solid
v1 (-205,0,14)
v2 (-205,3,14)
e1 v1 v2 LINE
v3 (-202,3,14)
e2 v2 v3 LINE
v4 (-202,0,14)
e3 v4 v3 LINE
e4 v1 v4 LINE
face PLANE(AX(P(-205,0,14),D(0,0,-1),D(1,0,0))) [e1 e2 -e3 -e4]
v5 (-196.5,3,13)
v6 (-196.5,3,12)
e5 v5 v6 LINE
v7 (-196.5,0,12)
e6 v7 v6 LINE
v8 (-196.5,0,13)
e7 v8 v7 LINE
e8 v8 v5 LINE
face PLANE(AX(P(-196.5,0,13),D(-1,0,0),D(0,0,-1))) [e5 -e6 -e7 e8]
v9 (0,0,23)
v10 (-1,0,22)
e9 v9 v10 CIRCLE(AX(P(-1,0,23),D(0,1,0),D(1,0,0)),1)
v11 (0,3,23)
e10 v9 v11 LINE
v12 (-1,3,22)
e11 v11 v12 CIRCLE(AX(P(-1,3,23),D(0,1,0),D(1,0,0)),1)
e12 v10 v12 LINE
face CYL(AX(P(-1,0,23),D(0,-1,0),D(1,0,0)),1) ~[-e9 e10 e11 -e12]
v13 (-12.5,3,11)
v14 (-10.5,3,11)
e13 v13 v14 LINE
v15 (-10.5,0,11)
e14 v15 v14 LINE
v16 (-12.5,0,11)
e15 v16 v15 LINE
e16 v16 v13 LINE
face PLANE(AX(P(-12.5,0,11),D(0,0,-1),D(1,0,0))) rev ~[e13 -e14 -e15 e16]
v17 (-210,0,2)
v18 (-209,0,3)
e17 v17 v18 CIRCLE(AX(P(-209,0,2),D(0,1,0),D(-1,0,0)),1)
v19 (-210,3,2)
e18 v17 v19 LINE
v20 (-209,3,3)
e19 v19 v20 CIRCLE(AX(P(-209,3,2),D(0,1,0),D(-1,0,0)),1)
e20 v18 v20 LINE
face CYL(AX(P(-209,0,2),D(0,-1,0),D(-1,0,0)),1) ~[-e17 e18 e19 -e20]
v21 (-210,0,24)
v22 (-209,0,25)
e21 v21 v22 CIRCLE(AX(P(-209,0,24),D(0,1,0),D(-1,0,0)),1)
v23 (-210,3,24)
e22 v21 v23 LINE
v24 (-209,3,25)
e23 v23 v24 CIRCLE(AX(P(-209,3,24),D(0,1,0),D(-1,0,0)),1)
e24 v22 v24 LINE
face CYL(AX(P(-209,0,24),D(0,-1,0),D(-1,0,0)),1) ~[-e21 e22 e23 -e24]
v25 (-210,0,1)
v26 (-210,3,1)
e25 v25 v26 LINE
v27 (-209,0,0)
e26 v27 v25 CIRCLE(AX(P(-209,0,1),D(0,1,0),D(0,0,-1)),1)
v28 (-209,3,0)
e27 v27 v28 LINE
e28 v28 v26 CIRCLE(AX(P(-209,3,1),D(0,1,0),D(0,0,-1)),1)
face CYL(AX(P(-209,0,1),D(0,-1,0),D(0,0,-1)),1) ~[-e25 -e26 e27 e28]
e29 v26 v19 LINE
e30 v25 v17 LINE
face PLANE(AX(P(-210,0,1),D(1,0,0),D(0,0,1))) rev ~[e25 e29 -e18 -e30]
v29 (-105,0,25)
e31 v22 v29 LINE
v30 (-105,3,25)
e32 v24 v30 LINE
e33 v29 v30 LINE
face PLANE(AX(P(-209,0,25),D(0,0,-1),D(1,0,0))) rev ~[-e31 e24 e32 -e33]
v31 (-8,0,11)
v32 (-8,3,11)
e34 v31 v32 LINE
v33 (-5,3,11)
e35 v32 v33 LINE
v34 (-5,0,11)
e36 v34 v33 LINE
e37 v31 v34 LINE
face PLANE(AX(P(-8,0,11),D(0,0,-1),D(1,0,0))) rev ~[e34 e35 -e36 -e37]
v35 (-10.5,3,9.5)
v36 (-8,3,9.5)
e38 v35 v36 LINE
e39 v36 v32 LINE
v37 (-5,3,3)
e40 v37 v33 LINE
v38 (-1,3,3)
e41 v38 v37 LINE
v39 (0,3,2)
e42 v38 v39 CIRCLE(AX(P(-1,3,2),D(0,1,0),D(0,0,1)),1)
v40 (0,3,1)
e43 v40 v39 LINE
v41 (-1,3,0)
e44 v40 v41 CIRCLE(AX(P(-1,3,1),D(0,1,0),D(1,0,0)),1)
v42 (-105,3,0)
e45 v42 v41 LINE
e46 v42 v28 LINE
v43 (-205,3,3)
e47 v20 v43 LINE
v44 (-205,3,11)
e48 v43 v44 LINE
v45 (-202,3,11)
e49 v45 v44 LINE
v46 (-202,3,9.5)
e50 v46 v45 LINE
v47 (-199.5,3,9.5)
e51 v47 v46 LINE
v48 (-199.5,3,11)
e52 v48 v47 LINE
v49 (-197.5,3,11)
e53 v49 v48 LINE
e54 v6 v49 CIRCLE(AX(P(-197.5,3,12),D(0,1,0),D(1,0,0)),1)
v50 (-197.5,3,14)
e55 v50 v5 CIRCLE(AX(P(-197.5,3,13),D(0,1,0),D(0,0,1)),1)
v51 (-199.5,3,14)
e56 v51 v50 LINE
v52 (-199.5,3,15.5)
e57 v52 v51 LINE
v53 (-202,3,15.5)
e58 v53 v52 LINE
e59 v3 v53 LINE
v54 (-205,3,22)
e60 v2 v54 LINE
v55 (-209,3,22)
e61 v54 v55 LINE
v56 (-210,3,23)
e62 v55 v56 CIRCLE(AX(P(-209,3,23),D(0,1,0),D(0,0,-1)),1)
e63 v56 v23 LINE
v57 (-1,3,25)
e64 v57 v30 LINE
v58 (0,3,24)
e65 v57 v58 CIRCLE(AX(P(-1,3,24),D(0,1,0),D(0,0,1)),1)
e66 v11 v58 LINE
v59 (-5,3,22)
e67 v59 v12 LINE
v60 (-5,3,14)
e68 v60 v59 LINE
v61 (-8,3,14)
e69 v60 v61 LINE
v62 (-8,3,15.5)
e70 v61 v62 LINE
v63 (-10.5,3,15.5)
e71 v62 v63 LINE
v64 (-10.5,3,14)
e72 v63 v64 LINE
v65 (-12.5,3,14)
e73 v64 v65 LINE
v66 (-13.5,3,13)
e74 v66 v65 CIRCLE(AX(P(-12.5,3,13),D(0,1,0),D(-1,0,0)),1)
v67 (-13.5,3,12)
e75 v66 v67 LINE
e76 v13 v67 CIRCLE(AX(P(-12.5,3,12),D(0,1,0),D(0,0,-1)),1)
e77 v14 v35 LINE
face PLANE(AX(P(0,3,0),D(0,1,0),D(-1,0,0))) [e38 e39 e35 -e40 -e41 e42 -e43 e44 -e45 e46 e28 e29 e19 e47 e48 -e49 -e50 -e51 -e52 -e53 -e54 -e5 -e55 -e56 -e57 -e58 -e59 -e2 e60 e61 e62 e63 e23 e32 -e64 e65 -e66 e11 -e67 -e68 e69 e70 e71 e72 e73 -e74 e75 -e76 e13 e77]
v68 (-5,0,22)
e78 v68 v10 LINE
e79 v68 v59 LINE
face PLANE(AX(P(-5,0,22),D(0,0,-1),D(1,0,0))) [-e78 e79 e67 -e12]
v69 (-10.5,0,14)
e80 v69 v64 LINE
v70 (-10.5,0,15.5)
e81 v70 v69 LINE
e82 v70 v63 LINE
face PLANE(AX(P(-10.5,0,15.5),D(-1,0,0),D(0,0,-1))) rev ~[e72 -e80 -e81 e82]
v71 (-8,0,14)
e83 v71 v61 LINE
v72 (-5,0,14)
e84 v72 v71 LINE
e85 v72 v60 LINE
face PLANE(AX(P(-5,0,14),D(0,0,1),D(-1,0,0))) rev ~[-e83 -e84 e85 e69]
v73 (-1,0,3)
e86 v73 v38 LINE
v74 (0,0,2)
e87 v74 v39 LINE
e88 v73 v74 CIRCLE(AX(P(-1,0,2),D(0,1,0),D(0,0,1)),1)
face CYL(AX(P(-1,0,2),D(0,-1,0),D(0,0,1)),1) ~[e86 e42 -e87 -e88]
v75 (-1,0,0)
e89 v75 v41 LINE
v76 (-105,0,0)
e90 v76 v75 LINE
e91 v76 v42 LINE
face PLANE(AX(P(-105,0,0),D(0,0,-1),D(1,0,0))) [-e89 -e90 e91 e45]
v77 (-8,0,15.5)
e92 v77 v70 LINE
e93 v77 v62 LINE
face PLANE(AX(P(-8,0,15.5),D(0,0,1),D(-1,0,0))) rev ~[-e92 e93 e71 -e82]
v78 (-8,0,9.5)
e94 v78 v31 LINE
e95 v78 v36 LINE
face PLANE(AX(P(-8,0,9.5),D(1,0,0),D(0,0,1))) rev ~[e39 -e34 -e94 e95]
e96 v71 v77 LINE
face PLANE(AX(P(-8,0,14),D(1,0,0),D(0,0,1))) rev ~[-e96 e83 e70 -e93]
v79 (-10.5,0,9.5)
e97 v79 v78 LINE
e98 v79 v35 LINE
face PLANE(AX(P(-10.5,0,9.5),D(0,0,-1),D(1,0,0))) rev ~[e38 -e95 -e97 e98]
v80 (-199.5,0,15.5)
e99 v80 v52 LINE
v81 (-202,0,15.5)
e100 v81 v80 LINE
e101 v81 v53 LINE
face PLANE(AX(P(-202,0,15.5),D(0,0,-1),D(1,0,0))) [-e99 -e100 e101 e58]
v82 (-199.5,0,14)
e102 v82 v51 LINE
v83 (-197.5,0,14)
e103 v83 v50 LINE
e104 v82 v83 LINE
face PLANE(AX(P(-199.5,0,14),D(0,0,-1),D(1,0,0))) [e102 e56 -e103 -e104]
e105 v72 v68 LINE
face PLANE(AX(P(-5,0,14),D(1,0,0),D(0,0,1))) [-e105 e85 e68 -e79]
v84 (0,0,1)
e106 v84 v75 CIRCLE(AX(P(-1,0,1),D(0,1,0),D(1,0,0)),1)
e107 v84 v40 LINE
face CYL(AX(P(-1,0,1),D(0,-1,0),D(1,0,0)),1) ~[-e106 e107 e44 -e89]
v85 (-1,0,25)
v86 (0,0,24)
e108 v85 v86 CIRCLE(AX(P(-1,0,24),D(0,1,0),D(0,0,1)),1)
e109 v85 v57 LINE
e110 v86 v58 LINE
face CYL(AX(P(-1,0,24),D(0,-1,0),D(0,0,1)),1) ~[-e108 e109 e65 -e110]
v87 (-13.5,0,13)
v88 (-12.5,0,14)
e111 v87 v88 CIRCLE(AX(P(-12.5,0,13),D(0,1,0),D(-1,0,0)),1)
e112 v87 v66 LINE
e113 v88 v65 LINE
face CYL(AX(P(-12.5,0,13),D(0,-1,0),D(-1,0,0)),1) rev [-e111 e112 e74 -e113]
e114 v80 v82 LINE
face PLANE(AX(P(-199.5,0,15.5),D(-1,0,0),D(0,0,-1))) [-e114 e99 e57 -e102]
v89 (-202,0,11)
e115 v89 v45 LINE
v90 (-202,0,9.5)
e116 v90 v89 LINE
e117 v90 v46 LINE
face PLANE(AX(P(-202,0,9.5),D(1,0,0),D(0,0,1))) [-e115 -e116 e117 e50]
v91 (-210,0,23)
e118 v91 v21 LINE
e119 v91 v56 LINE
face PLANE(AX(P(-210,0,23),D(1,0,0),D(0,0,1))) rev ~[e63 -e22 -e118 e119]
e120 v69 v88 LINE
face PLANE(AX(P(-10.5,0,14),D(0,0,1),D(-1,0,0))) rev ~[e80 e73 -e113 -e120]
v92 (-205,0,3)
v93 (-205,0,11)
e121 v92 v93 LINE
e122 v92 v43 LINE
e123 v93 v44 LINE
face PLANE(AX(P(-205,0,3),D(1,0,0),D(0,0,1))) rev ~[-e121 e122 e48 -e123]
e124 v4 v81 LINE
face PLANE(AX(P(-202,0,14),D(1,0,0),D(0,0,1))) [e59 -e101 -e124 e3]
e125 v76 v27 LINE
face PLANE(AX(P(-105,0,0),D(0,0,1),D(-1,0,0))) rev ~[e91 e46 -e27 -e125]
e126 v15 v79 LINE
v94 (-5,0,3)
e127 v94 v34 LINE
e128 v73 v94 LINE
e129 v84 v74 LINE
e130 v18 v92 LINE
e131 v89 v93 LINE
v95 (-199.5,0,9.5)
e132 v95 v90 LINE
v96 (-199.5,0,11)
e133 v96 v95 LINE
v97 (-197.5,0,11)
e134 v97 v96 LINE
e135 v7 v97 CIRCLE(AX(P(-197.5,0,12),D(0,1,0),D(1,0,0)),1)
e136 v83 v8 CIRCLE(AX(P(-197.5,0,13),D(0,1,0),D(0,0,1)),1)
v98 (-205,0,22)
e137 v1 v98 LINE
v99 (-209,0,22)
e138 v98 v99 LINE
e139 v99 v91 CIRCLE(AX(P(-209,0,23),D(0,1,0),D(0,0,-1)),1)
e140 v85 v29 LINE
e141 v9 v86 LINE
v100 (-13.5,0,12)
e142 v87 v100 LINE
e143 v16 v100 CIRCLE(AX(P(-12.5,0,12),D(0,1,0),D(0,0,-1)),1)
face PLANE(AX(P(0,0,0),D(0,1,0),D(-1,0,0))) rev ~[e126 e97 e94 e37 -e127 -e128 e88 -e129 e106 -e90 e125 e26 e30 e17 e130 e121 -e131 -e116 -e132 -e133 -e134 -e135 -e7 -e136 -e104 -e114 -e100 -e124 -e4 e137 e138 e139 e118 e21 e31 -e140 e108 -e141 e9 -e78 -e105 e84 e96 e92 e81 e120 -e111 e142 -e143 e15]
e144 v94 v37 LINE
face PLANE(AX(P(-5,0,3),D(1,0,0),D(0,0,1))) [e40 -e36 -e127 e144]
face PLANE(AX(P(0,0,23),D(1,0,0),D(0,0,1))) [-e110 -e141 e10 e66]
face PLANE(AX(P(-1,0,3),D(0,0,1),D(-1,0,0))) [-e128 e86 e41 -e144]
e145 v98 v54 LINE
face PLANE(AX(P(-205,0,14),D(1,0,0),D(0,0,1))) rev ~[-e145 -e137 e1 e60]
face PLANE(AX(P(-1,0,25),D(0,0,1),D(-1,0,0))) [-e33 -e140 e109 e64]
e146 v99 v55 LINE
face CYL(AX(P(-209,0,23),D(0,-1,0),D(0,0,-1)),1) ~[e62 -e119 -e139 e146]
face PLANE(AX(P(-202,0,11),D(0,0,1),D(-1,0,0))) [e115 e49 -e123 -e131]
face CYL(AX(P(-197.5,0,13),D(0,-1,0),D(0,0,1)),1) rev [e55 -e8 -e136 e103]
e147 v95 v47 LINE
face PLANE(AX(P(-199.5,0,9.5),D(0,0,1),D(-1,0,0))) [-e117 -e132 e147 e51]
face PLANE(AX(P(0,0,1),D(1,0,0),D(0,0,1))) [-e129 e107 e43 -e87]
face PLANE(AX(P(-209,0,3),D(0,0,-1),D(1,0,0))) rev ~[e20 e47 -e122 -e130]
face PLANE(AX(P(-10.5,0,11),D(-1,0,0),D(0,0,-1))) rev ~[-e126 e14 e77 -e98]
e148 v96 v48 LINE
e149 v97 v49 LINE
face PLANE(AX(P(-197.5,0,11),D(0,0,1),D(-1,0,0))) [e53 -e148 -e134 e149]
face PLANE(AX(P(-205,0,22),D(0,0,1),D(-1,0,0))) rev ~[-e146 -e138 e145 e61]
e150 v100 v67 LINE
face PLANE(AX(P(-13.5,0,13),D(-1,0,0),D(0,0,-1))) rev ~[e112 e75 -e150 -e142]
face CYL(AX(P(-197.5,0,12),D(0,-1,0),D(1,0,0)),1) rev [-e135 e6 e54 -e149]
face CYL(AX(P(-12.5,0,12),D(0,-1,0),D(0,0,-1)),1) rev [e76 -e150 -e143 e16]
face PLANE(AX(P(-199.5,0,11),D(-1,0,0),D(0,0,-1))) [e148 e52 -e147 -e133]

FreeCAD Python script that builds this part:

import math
import FreeCAD as App
import Part
import Sketcher

V = App.Vector

doc = App.newDocument("Part")
body = doc.addObject("PartDesign::Body", "Body")

# Sketch on XZ plane
sketch1 = body.newObject("Sketcher::SketchObject", "Sketch")
sketch1.AttachmentSupport = (doc.getObject("XZ_Plane"), [""])
sketch1.MapMode = "FlatFace"
sketch1.addGeometry(Part.LineSegment(V(0, 2, 0), V(0, 1, 0)), False)
sketch1.addGeometry(Part.ArcOfCircle(Part.Circle(V(-1, 1, 0), V(0, 0, 1), 1), math.radians(-90), math.radians(0)), False)
sketch1.addGeometry(Part.LineSegment(V(-1, 0, 0), V(-209, 0, 0)), False)
sketch1.addGeometry(Part.ArcOfCircle(Part.Circle(V(-209, 1, 0), V(0, 0, 1), 1), math.radians(180), math.radians(270)), False)
sketch1.addGeometry(Part.LineSegment(V(-210, 1, 0), V(-210, 2, 0)), False)
sketch1.addGeometry(Part.ArcOfCircle(Part.Circle(V(-209, 2, 0), V(0, 0, 1), 1), math.radians(90), math.radians(180)), False)
sketch1.addGeometry(Part.LineSegment(V(-209, 3, 0), V(-205, 3, 0)), False)
sketch1.addGeometry(Part.LineSegment(V(-205, 3, 0), V(-205, 11, 0)), False)
sketch1.addGeometry(Part.LineSegment(V(-205, 11, 0), V(-202, 11, 0)), False)
sketch1.addGeometry(Part.LineSegment(V(-202, 11, 0), V(-202, 9.5, 0)), False)
sketch1.addGeometry(Part.LineSegment(V(-202, 9.5, 0), V(-199.5, 9.5, 0)), False)
sketch1.addGeometry(Part.LineSegment(V(-199.5, 9.5, 0), V(-199.5, 11, 0)), False)
sketch1.addGeometry(Part.LineSegment(V(-199.5, 11, 0), V(-197.5, 11, 0)), False)
sketch1.addGeometry(Part.ArcOfCircle(Part.Circle(V(-197.5, 12, 0), V(0, 0, 1), 1), math.radians(-90), math.radians(0)), False)
sketch1.addGeometry(Part.LineSegment(V(-196.5, 12, 0), V(-196.5, 13, 0)), False)
sketch1.addGeometry(Part.ArcOfCircle(Part.Circle(V(-197.5, 13, 0), V(0, 0, 1), 1), math.radians(0), math.radians(90)), False)
sketch1.addGeometry(Part.LineSegment(V(-197.5, 14, 0), V(-199.5, 14, 0)), False)
sketch1.addGeometry(Part.LineSegment(V(-199.5, 14, 0), V(-199.5, 15.5, 0)), False)
sketch1.addGeometry(Part.LineSegment(V(-199.5, 15.5, 0), V(-202, 15.5, 0)), False)
sketch1.addGeometry(Part.LineSegment(V(-202, 15.5, 0), V(-202, 14, 0)), False)
sketch1.addGeometry(Part.LineSegment(V(-202, 14, 0), V(-205, 14, 0)), False)
sketch1.addGeometry(Part.LineSegment(V(-205, 14, 0), V(-205, 22, 0)), False)
sketch1.addGeometry(Part.LineSegment(V(-205, 22, 0), V(-209, 22, 0)), False)
sketch1.addGeometry(Part.ArcOfCircle(Part.Circle(V(-209, 23, 0), V(0, 0, 1), 1), math.radians(180), math.radians(270)), False)
sketch1.addGeometry(Part.LineSegment(V(-210, 23, 0), V(-210, 24, 0)), False)
sketch1.addGeometry(Part.ArcOfCircle(Part.Circle(V(-209, 24, 0), V(0, 0, 1), 1), math.radians(90), math.radians(180)), False)
sketch1.addGeometry(Part.LineSegment(V(-209, 25, 0), V(-1, 25, 0)), False)
sketch1.addGeometry(Part.ArcOfCircle(Part.Circle(V(-1, 24, 0), V(0, 0, 1), 1), math.radians(0), math.radians(90)), False)
sketch1.addGeometry(Part.LineSegment(V(0, 24, 0), V(0, 23, 0)), False)
sketch1.addGeometry(Part.ArcOfCircle(Part.Circle(V(-1, 23, 0), V(0, 0, 1), 1), math.radians(-90), math.radians(0)), False)
sketch1.addGeometry(Part.LineSegment(V(-1, 22, 0), V(-5, 22, 0)), False)
sketch1.addGeometry(Part.LineSegment(V(-5, 22, 0), V(-5, 14, 0)), False)
sketch1.addGeometry(Part.LineSegment(V(-5, 14, 0), V(-8, 14, 0)), False)
sketch1.addGeometry(Part.LineSegment(V(-8, 14, 0), V(-8, 15.5, 0)), False)
sketch1.addGeometry(Part.LineSegment(V(-8, 15.5, 0), V(-10.5, 15.5, 0)), False)
sketch1.addGeometry(Part.LineSegment(V(-10.5, 15.5, 0), V(-10.5, 14, 0)), False)
sketch1.addGeometry(Part.LineSegment(V(-10.5, 14, 0), V(-12.5, 14, 0)), False)
sketch1.addGeometry(Part.ArcOfCircle(Part.Circle(V(-12.5, 13, 0), V(0, 0, 1), 1), math.radians(90), math.radians(180)), False)
sketch1.addGeometry(Part.LineSegment(V(-13.5, 13, 0), V(-13.5, 12, 0)), False)
sketch1.addGeometry(Part.ArcOfCircle(Part.Circle(V(-12.5, 12, 0), V(0, 0, 1), 1), math.radians(180), math.radians(270)), False)
sketch1.addGeometry(Part.LineSegment(V(-12.5, 11, 0), V(-10.5, 11, 0)), False)
sketch1.addGeometry(Part.LineSegment(V(-10.5, 11, 0), V(-10.5, 9.5, 0)), False)
sketch1.addGeometry(Part.LineSegment(V(-10.5, 9.5, 0), V(-8, 9.5, 0)), False)
sketch1.addGeometry(Part.LineSegment(V(-8, 9.5, 0), V(-8, 11, 0)), False)
sketch1.addGeometry(Part.LineSegment(V(-8, 11, 0), V(-5, 11, 0)), False)
sketch1.addGeometry(Part.LineSegment(V(-5, 11, 0), V(-5, 3, 0)), False)
sketch1.addGeometry(Part.LineSegment(V(-5, 3, 0), V(-1, 3, 0)), False)
sketch1.addGeometry(Part.ArcOfCircle(Part.Circle(V(-1, 2, 0), V(0, 0, 1), 1), math.radians(0), math.radians(90)), False)
sketch1.addConstraint(Sketcher.Constraint("Tangent", 0, 2, 1, 2))
sketch1.addConstraint(Sketcher.Constraint("Tangent", 1, 1, 2, 1))
sketch1.addConstraint(Sketcher.Constraint("Tangent", 2, 2, 3, 2))
sketch1.addConstraint(Sketcher.Constraint("Tangent", 3, 1, 4, 1))
sketch1.addConstraint(Sketcher.Constraint("Tangent", 4, 2, 5, 2))
sketch1.addConstraint(Sketcher.Constraint("Tangent", 5, 1, 6, 1))
sketch1.addConstraint(Sketcher.Constraint("Coincident", 6, 2, 7, 1))
sketch1.addConstraint(Sketcher.Constraint("Coincident", 7, 2, 8, 1))
sketch1.addConstraint(Sketcher.Constraint("Coincident", 8, 2, 9, 1))
sketch1.addConstraint(Sketcher.Constraint("Coincident", 9, 2, 10, 1))
sketch1.addConstraint(Sketcher.Constraint("Coincident", 10, 2, 11, 1))
sketch1.addConstraint(Sketcher.Constraint("Coincident", 11, 2, 12, 1))
sketch1.addConstraint(Sketcher.Constraint("Tangent", 12, 2, 13, 1))
sketch1.addConstraint(Sketcher.Constraint("Tangent", 13, 2, 14, 1))
sketch1.addConstraint(Sketcher.Constraint("Tangent", 14, 2, 15, 1))
sketch1.addConstraint(Sketcher.Constraint("Tangent", 15, 2, 16, 1))
sketch1.addConstraint(Sketcher.Constraint("Coincident", 16, 2, 17, 1))
sketch1.addConstraint(Sketcher.Constraint("Coincident", 17, 2, 18, 1))
sketch1.addConstraint(Sketcher.Constraint("Coincident", 18, 2, 19, 1))
sketch1.addConstraint(Sketcher.Constraint("Coincident", 19, 2, 20, 1))
sketch1.addConstraint(Sketcher.Constraint("Coincident", 20, 2, 21, 1))
sketch1.addConstraint(Sketcher.Constraint("Coincident", 21, 2, 22, 1))
sketch1.addConstraint(Sketcher.Constraint("Tangent", 22, 2, 23, 2))
sketch1.addConstraint(Sketcher.Constraint("Tangent", 23, 1, 24, 1))
sketch1.addConstraint(Sketcher.Constraint("Tangent", 24, 2, 25, 2))
sketch1.addConstraint(Sketcher.Constraint("Tangent", 25, 1, 26, 1))
sketch1.addConstraint(Sketcher.Constraint("Tangent", 26, 2, 27, 2))
sketch1.addConstraint(Sketcher.Constraint("Tangent", 27, 1, 28, 1))
sketch1.addConstraint(Sketcher.Constraint("Tangent", 28, 2, 29, 2))
sketch1.addConstraint(Sketcher.Constraint("Tangent", 29, 1, 30, 1))
sketch1.addConstraint(Sketcher.Constraint("Coincident", 30, 2, 31, 1))
sketch1.addConstraint(Sketcher.Constraint("Coincident", 31, 2, 32, 1))
sketch1.addConstraint(Sketcher.Constraint("Coincident", 32, 2, 33, 1))
sketch1.addConstraint(Sketcher.Constraint("Coincident", 33, 2, 34, 1))
sketch1.addConstraint(Sketcher.Constraint("Coincident", 34, 2, 35, 1))
sketch1.addConstraint(Sketcher.Constraint("Coincident", 35, 2, 36, 1))
sketch1.addConstraint(Sketcher.Constraint("Tangent", 36, 2, 37, 1))
sketch1.addConstraint(Sketcher.Constraint("Tangent", 37, 2, 38, 1))
sketch1.addConstraint(Sketcher.Constraint("Tangent", 38, 2, 39, 1))
sketch1.addConstraint(Sketcher.Constraint("Tangent", 39, 2, 40, 1))
sketch1.addConstraint(Sketcher.Constraint("Coincident", 40, 2, 41, 1))
sketch1.addConstraint(Sketcher.Constraint("Coincident", 41, 2, 42, 1))
sketch1.addConstraint(Sketcher.Constraint("Coincident", 42, 2, 43, 1))
sketch1.addConstraint(Sketcher.Constraint("Coincident", 43, 2, 44, 1))
sketch1.addConstraint(Sketcher.Constraint("Coincident", 44, 2, 45, 1))
sketch1.addConstraint(Sketcher.Constraint("Coincident", 45, 2, 46, 1))
sketch1.addConstraint(Sketcher.Constraint("Tangent", 46, 2, 47, 2))
sketch1.addConstraint(Sketcher.Constraint("Tangent", 47, 1, 0, 1))
sketch1.addConstraint(Sketcher.Constraint("Vertical", 0))
sketch1.addConstraint(Sketcher.Constraint("Horizontal", 2))
sketch1.addConstraint(Sketcher.Constraint("Vertical", 4))
sketch1.addConstraint(Sketcher.Constraint("Horizontal", 6))
sketch1.addConstraint(Sketcher.Constraint("Vertical", 7))
sketch1.addConstraint(Sketcher.Constraint("Horizontal", 8))
sketch1.addConstraint(Sketcher.Constraint("Vertical", 9))
sketch1.addConstraint(Sketcher.Constraint("Horizontal", 10))
sketch1.addConstraint(Sketcher.Constraint("Vertical", 11))
sketch1.addConstraint(Sketcher.Constraint("Horizontal", 12))
sketch1.addConstraint(Sketcher.Constraint("Vertical", 14))
sketch1.addConstraint(Sketcher.Constraint("Horizontal", 16))
sketch1.addConstraint(Sketcher.Constraint("Vertical", 17))
sketch1.addConstraint(Sketcher.Constraint("Horizontal", 18))
sketch1.addConstraint(Sketcher.Constraint("Vertical", 19))
sketch1.addConstraint(Sketcher.Constraint("Horizontal", 20))
sketch1.addConstraint(Sketcher.Constraint("Vertical", 21))
sketch1.addConstraint(Sketcher.Constraint("Horizontal", 22))
sketch1.addConstraint(Sketcher.Constraint("Vertical", 24))
sketch1.addConstraint(Sketcher.Constraint("Horizontal", 26))
sketch1.addConstraint(Sketcher.Constraint("Vertical", 28))
sketch1.addConstraint(Sketcher.Constraint("Horizontal", 30))
sketch1.addConstraint(Sketcher.Constraint("Vertical", 31))
sketch1.addConstraint(Sketcher.Constraint("Horizontal", 32))
sketch1.addConstraint(Sketcher.Constraint("Vertical", 33))
sketch1.addConstraint(Sketcher.Constraint("Horizontal", 34))
sketch1.addConstraint(Sketcher.Constraint("Vertical", 35))
sketch1.addConstraint(Sketcher.Constraint("Horizontal", 36))
sketch1.addConstraint(Sketcher.Constraint("Vertical", 38))
sketch1.addConstraint(Sketcher.Constraint("Horizontal", 40))
sketch1.addConstraint(Sketcher.Constraint("Vertical", 41))
sketch1.addConstraint(Sketcher.Constraint("Horizontal", 42))
sketch1.addConstraint(Sketcher.Constraint("Vertical", 43))
sketch1.addConstraint(Sketcher.Constraint("Horizontal", 44))
sketch1.addConstraint(Sketcher.Constraint("Vertical", 45))
sketch1.addConstraint(Sketcher.Constraint("Horizontal", 46))
sketch1.addConstraint(Sketcher.Constraint("Equal", 1, 3))
sketch1.addConstraint(Sketcher.Constraint("Equal", 3, 5))
sketch1.addConstraint(Sketcher.Constraint("Equal", 5, 13))
sketch1.addConstraint(Sketcher.Constraint("Equal", 13, 15))
sketch1.addConstraint(Sketcher.Constraint("Equal", 15, 23))
sketch1.addConstraint(Sketcher.Constraint("Equal", 23, 25))
sketch1.addConstraint(Sketcher.Constraint("Equal", 25, 27))
sketch1.addConstraint(Sketcher.Constraint("Equal", 27, 29))
sketch1.addConstraint(Sketcher.Constraint("Equal", 29, 37))
sketch1.addConstraint(Sketcher.Constraint("Equal", 37, 39))
sketch1.addConstraint(Sketcher.Constraint("Equal", 39, 47))
sketch1.addConstraint(Sketcher.Constraint("PointOnObject", 0, 2, -2))
sketch1.addConstraint(Sketcher.Constraint("PointOnObject", 1, 1, -1))
sketch1.addConstraint(Sketcher.Constraint("PointOnObject", 27, 1, -2))
sketch1.addConstraint(Sketcher.Constraint("Horizontal", 23, 3, 29, 3))
sketch1.addConstraint(Sketcher.Constraint("Horizontal", 15, 3, 37, 3))
sketch1.addConstraint(Sketcher.Constraint("Horizontal", 13, 3, 39, 3))
sketch1.addConstraint(Sketcher.Constraint("Horizontal", 5, 3, 47, 3))
sketch1.addConstraint(Sketcher.Constraint("Horizontal", 8, 2, 11, 2))
sketch1.addConstraint(Sketcher.Constraint("Horizontal", 16, 2, 19, 2))
sketch1.addConstraint(Sketcher.Constraint("Horizontal", 20, 2, 31, 2))
sketch1.addConstraint(Sketcher.Constraint("Horizontal", 18, 2, 33, 2))
sketch1.addConstraint(Sketcher.Constraint("Horizontal", 10, 2, 41, 2))
sketch1.addConstraint(Sketcher.Constraint("Horizontal", 40, 2, 43, 2))
sketch1.addConstraint(Sketcher.Constraint("Vertical", 5, 3, 23, 3))
sketch1.addConstraint(Sketcher.Constraint("Vertical", 11, 2, 16, 2))
sketch1.addConstraint(Sketcher.Constraint("Vertical", 9, 2, 18, 2))
sketch1.addConstraint(Sketcher.Constraint("Vertical", 7, 2, 20, 2))
sketch1.addConstraint(Sketcher.Constraint("Vertical", 35, 2, 40, 2))
sketch1.addConstraint(Sketcher.Constraint("Vertical", 33, 2, 42, 2))
sketch1.addConstraint(Sketcher.Constraint("Vertical", 31, 2, 44, 2))
sketch1.addConstraint(Sketcher.Constraint("Equal", 22, 30))
sketch1.addConstraint(Sketcher.Constraint("Equal", 20, 32))
sketch1.addConstraint(Sketcher.Constraint("Equal", 18, 34))
sketch1.addConstraint(Sketcher.Constraint("Equal", 16, 36))
sketch1.addConstraint(Sketcher.Constraint("Equal", 4, 14))
sketch1.addConstraint(Sketcher.Constraint("Equal", 11, 17))
sketch1.addConstraint(Sketcher.Constraint("Equal", 7, 21))
sketch1.addConstraint(Sketcher.Constraint("Equal", 14, 24))
sketch1.addConstraint(Sketcher.Constraint("Radius", 1, 1.0))
sketch1.addConstraint(Sketcher.Constraint("DistanceX", 8, 1, 8, 2, 3.0))
sketch1.addConstraint(Sketcher.Constraint("DistanceY", 0, 2, 0, 1, 1.0))
sketch1.addConstraint(Sketcher.Constraint("DistanceY", 7, 1, 7, 2, 8.0))
sketch1.addConstraint(Sketcher.Constraint("DistanceX", 10, 1, 10, 2, 2.5))
sketch1.addConstraint(Sketcher.Constraint("DistanceX", 30, 2, -1, 1, 5.0))
sketch1.addConstraint(Sketcher.Constraint("DistanceX", 11, 2, 13, 2, 3.0))
sketch1.addConstraint(Sketcher.Constraint("DistanceY", 9, 2, 13, 3, 2.5))
sketch1.addConstraint(Sketcher.Constraint("DistanceX", 2, 2, 2, 1, 208.0))
pad1 = body.newObject("PartDesign::Pad", "Pad")
pad1.Profile = sketch1
pad1.Length = 3
pad1.Reversed = True

doc.recompute()
